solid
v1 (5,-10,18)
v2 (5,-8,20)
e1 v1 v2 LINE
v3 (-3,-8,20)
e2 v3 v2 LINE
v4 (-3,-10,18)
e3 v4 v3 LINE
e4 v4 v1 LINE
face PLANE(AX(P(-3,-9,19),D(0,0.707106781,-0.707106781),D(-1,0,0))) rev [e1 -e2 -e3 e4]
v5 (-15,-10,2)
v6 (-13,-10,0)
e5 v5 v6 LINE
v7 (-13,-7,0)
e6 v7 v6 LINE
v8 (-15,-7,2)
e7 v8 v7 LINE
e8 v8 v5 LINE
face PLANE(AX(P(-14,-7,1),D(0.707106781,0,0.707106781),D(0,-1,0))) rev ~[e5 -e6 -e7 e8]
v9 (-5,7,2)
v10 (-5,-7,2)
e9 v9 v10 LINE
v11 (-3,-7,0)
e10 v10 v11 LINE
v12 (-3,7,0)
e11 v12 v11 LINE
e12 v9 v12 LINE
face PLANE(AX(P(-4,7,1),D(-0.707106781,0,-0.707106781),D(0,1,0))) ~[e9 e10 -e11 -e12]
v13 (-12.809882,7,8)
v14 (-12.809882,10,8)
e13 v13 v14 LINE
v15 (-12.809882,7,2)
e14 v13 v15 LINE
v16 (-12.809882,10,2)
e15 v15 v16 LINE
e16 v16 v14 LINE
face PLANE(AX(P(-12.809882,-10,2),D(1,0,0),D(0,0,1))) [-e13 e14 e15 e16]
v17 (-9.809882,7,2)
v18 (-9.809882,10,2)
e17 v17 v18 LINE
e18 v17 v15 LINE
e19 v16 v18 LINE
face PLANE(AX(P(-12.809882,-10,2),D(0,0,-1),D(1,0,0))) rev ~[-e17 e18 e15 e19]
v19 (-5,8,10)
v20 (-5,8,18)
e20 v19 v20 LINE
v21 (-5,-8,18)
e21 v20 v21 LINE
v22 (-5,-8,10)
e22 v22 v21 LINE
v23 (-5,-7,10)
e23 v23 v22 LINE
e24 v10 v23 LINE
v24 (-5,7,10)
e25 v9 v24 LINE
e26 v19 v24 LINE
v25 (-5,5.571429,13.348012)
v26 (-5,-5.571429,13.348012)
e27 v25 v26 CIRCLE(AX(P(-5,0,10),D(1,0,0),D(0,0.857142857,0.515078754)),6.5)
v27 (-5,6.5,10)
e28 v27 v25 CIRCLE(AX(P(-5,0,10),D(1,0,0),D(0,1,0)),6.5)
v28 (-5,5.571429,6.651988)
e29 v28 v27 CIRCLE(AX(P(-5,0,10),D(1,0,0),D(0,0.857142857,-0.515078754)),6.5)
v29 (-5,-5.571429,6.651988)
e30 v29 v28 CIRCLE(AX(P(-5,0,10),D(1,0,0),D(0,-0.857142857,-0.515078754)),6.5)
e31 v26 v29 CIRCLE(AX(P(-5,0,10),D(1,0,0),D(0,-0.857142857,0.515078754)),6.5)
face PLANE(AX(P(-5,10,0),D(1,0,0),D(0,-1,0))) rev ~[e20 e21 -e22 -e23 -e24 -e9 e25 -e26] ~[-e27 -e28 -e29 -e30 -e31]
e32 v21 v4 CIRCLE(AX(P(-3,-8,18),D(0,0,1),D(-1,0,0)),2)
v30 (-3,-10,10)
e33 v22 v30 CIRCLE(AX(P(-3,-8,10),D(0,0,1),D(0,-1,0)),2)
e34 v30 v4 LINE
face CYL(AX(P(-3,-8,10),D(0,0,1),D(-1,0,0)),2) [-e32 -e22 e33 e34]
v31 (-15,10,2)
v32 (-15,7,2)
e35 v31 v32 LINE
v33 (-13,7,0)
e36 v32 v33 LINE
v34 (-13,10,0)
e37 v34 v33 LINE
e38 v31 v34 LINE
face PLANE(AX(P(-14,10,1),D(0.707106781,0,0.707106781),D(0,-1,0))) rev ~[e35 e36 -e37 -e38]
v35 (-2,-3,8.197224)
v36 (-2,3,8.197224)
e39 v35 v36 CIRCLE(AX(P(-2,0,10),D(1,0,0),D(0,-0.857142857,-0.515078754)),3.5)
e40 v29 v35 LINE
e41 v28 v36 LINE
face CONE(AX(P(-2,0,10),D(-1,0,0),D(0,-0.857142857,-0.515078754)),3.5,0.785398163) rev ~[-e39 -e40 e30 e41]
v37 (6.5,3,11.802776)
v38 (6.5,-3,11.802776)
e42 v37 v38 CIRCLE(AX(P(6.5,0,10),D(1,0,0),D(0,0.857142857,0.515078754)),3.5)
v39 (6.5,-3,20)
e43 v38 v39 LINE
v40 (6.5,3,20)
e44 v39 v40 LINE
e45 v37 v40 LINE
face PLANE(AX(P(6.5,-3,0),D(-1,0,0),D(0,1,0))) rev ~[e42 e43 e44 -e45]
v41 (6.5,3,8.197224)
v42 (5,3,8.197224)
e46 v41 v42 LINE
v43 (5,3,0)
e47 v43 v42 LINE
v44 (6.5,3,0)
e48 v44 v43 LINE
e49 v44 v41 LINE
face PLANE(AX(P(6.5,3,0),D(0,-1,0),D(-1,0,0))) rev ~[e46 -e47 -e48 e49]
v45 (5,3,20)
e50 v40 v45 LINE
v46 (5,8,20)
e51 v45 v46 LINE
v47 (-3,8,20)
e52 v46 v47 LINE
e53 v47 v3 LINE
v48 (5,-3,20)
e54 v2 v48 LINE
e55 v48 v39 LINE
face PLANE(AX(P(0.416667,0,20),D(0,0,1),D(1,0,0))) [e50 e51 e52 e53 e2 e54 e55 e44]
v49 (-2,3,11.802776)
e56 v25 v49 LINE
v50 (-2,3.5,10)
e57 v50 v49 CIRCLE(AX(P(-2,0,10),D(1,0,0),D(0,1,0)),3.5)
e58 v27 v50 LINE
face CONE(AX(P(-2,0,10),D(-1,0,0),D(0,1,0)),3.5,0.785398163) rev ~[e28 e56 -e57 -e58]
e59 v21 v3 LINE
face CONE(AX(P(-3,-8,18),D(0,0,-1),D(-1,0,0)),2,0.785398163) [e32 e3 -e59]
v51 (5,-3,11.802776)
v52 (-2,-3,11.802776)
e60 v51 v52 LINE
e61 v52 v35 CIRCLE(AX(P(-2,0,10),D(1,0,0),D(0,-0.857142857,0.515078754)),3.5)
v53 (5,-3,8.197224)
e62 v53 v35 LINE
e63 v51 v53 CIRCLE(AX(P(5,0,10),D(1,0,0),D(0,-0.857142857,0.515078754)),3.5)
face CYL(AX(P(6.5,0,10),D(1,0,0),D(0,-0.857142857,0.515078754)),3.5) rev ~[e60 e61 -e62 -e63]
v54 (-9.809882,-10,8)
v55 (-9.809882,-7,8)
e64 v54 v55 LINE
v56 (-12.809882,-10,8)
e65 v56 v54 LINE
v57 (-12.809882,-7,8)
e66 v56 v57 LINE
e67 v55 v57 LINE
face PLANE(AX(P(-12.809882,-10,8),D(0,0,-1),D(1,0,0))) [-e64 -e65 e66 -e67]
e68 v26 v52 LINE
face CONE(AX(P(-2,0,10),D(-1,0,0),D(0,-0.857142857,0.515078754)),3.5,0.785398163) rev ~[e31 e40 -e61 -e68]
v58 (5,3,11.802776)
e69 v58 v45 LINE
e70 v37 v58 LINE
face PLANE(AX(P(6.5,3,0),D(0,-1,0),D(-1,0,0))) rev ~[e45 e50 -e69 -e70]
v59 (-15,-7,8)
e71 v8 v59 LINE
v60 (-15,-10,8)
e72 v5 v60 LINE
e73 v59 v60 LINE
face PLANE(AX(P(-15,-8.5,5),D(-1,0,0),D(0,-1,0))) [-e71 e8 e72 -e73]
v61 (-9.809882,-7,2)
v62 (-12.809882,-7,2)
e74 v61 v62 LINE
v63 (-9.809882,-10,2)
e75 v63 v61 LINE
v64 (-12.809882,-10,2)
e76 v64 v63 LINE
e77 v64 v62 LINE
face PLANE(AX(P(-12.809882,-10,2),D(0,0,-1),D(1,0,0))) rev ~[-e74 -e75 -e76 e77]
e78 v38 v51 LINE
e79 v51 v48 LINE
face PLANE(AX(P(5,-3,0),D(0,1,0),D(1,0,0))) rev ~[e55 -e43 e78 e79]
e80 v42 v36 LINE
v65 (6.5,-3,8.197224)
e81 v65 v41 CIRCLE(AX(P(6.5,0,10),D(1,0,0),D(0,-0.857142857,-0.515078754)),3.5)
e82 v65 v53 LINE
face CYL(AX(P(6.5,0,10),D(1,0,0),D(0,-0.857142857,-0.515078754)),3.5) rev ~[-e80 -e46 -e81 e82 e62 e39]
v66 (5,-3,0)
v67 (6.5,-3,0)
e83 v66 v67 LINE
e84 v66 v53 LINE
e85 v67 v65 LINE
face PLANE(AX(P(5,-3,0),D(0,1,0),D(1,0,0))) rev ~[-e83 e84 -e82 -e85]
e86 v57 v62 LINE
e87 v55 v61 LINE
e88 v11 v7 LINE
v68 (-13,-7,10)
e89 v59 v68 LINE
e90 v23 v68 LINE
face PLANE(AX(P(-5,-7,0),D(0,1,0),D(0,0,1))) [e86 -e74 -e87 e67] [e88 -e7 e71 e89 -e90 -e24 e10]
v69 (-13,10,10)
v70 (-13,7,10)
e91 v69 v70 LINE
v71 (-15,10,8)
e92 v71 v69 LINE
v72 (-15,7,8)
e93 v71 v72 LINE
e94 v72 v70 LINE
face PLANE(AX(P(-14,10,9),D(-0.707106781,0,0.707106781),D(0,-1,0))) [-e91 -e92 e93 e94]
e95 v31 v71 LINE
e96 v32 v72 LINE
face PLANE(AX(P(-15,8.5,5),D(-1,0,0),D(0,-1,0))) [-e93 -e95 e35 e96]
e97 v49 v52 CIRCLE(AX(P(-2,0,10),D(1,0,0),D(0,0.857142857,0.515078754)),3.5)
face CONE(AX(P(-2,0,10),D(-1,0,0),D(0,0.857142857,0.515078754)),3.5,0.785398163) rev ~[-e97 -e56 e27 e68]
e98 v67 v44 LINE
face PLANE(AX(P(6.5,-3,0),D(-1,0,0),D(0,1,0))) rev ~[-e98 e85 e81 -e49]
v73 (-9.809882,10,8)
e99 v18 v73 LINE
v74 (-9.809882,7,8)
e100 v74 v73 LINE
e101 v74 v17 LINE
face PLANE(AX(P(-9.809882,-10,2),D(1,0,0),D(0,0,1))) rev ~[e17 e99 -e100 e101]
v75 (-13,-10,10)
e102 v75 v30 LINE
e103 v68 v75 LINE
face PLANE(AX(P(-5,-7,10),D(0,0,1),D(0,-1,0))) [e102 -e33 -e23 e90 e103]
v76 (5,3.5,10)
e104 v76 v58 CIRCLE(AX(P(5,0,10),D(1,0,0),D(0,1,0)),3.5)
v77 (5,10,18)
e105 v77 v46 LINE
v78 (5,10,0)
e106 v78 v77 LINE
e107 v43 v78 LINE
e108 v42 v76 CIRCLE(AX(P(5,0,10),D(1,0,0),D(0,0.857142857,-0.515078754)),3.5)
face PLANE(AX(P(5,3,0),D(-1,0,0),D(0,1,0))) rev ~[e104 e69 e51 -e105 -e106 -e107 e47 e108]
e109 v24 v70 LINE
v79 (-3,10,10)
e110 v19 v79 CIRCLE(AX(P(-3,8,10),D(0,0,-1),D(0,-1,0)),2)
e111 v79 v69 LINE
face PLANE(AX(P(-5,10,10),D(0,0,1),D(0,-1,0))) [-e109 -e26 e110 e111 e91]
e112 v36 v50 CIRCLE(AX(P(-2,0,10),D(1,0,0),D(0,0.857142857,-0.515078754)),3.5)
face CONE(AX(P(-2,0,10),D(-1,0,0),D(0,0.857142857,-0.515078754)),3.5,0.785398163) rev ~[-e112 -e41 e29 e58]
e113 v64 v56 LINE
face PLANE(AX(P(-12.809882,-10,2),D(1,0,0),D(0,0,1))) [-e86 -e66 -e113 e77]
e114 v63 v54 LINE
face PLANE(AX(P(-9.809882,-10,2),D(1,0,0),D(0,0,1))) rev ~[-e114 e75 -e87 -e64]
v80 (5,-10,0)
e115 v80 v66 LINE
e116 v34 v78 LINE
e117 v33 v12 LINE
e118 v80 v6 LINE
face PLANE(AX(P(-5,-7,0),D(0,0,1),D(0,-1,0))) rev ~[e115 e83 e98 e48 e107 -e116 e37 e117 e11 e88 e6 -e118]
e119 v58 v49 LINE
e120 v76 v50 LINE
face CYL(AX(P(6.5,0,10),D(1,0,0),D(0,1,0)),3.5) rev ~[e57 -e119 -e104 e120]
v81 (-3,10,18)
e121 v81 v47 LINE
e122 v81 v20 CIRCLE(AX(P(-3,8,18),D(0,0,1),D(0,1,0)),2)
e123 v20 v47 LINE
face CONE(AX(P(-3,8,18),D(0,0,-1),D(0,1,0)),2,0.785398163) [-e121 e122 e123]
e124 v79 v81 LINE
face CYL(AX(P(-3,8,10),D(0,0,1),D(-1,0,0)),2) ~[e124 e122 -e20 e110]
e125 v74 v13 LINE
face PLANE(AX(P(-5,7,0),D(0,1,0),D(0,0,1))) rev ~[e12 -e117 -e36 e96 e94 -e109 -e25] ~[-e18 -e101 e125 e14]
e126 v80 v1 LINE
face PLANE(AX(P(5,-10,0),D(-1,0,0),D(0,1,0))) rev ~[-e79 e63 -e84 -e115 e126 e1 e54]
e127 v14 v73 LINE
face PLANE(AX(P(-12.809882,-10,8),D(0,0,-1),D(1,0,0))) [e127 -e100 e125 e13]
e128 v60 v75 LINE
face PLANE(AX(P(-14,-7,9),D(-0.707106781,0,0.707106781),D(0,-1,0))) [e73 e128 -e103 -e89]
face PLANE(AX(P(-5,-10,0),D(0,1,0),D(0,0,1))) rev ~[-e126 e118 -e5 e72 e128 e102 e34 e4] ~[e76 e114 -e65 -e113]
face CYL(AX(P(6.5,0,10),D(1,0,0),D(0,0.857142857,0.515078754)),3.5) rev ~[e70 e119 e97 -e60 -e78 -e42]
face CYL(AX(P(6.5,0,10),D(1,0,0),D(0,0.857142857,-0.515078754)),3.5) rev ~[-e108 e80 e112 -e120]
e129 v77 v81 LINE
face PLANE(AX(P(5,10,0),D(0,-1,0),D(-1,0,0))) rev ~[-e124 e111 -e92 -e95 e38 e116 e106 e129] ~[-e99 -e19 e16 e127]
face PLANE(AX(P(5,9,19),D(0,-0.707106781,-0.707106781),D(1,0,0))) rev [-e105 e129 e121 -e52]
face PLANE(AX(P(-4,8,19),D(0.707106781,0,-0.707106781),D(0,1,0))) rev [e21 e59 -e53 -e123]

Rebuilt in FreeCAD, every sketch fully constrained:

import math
import FreeCAD as App
import Part
import Sketcher
Q = App.Units.Quantity


def edges_at(feature, points):
    """Names of the edges that pass closest to the given points."""
    edges = feature.Shape.Edges
    near = lambda p: min(range(len(edges)), key=lambda i: edges[i].distToShape(Part.Vertex(*p))[0])
    return sorted({f"Edge{near(p) + 1}" for p in points})


def add_polygon(sketch, points):
    """Adds a closed chain of lines whose ends are joined by coincident constraints."""
    first, n = sketch.GeometryCount, len(points)
    for a, b in zip(points, points[1:] + points[:1]):
        sketch.addGeometry(Part.LineSegment(App.Vector(*a, 0), App.Vector(*b, 0)), False)
    for i in range(n):
        sketch.addConstraint(Sketcher.Constraint("Coincident", first + i, 2, first + (i + 1) % n, 1))

doc = App.newDocument("Part")
params = doc.addObject("Spreadsheet::Sheet", "Params")
for row, (alias, value) in enumerate([
    ("sketch1_width", "10 mm"),
    ("sketch1_height", "20 mm"),
    ("sketch1_height2", "7 mm"),
    ("sketch1_width2", "1.5 mm"),
    ("pad1_length", "20 mm"),
    ("sketch2_radius", "3.5 mm"),
    ("pocket1_length", "15 mm"),
    ("chamfer_size", "3 mm"),
    ("sketch3_width", "3 mm"),
    ("sketch3_height", "10 mm"),
    ("pad2_length", "10 mm"),
    ("sketch4_width", "3 mm"),
    ("sketch4_height", "6 mm"),
    ("pocket2_length", "25 mm"),
    ("fillet_radius", "2 mm"),
    ("chamfer2_size", "2 mm"),
], start=1):
    params.set(f"A{row}", alias)
    params.set(f"B{row}", "=" + value)
    params.setAlias(f"B{row}", alias)

body = doc.addObject("PartDesign::Body", "Body")

# Sketch on XY plane
sketch1 = doc.addObject("Sketcher::SketchObject", "Sketch")
body.addObject(sketch1)
sketch1.AttachmentSupport = (doc.XY_Plane, [""])
sketch1.MapMode = "FlatFace"
add_polygon(sketch1, [(5, 10), (-5, 10), (-5, -10), (5, -10), (5, -3), (6.5, -3), (6.5, 3), (5, 3)])  # lines 0-7
sketch1.addConstraint([
    Sketcher.Constraint("Horizontal", 0),
    Sketcher.Constraint("Vertical", 1),
    Sketcher.Constraint("Horizontal", 2),
    Sketcher.Constraint("Vertical", 3),
    Sketcher.Constraint("Horizontal", 4),
    Sketcher.Constraint("Vertical", 5),
    Sketcher.Constraint("Horizontal", 6),
    Sketcher.Constraint("Vertical", 7),
    Sketcher.Constraint("Symmetric", 0, 2, 2, 2, -1, 1),
    Sketcher.Constraint("Symmetric", 3, 2, 6, 2, -1),
    Sketcher.Constraint("DistanceX", 0, 2, 0, 1, Q("10 mm")),
    Sketcher.Constraint("DistanceY", 1, 2, 1, 1, Q("20 mm")),
    Sketcher.Constraint("DistanceY", 3, 1, 3, 2, Q("7 mm")),
    Sketcher.Constraint("DistanceX", 4, 1, 4, 2, Q("1.5 mm")),
])
sketch1.setExpression("Constraints[18]", "Params.sketch1_width")
sketch1.setExpression("Constraints[19]", "Params.sketch1_height")
sketch1.setExpression("Constraints[20]", "Params.sketch1_height2")
sketch1.setExpression("Constraints[21]", "Params.sketch1_width2")
pad1 = doc.addObject("PartDesign::Pad", "Pad")
body.addObject(pad1)
pad1.Profile = sketch1
pad1.setExpression("Length", "Params.pad1_length")

# Sketch on YZ plane
sketch2 = doc.addObject("Sketcher::SketchObject", "Sketch001")
body.addObject(sketch2)
sketch2.AttachmentSupport = (doc.YZ_Plane, [""])
sketch2.MapMode = "FlatFace"
sketch2.AttachmentOffset = App.Placement(App.Vector(0, 0, 6.5), App.Rotation())
sketch2.addGeometry([
    Part.ArcOfCircle(Part.Circle(App.Vector(0, 10, 0), App.Vector(0, 0, 1), 3.5), math.radians(-31), math.radians(0)),  # 0
    Part.ArcOfCircle(Part.Circle(App.Vector(0, 10, 0), App.Vector(0, 0, 1), 3.5), math.radians(0), math.radians(31)),  # 1
    Part.ArcOfCircle(Part.Circle(App.Vector(0, 10, 0), App.Vector(0, 0, 1), 3.5), math.radians(31), math.radians(149)),  # 2
    Part.ArcOfCircle(Part.Circle(App.Vector(0, 10, 0), App.Vector(0, 0, 1), 3.5), math.radians(149), math.radians(211)),  # 3
    Part.ArcOfCircle(Part.Circle(App.Vector(0, 10, 0), App.Vector(0, 0, 1), 3.5), math.radians(-149), math.radians(-31)),  # 4
], False)
sketch2.addConstraint([
    Sketcher.Constraint("Tangent", 0, 2, 1, 1),
    Sketcher.Constraint("Tangent", 1, 2, 2, 1),
    Sketcher.Constraint("Tangent", 2, 2, 3, 1),
    Sketcher.Constraint("Tangent", 3, 2, 4, 1),
    Sketcher.Constraint("Tangent", 4, 2, 0, 1),
    Sketcher.Constraint("Coincident", 2, 3, 0, 3),
    Sketcher.Constraint("Symmetric", 1, 2, 2, 2, -2),
    Sketcher.Constraint("Horizontal", 4, 3, 0, 2),
    Sketcher.Constraint("Horizontal", 3, 2, 4, 2),
    Sketcher.Constraint("Vertical", 2, 2, 3, 2),
    Sketcher.Constraint("Radius", 0, Q("3.5 mm")),
    Sketcher.Constraint("DistanceY", -1, 1, 0, 3, Q("10 mm")),
    Sketcher.Constraint("DistanceX", -1, 1, 1, 2, Q("3 mm")),
])
sketch2.setExpression("Constraints[10]", "Params.sketch2_radius")
pocket1 = doc.addObject("PartDesign::Pocket", "Pocket")
body.addObject(pocket1)
pocket1.Profile = sketch2
pocket1.setExpression("Length", "Params.pocket1_length")
doc.recompute()

chamfer = doc.addObject("PartDesign::Chamfer", "Chamfer")
body.addObject(chamfer)
chamfer.Base = (pocket1, edges_at(pocket1, [(-5, 0, 6.5)]))
chamfer.setExpression("Size", "Params.chamfer_size")

# Sketch on YZ plane
sketch3 = doc.addObject("Sketcher::SketchObject", "Sketch002")
body.addObject(sketch3)
sketch3.AttachmentSupport = (doc.YZ_Plane, [""])
sketch3.MapMode = "FlatFace"
sketch3.AttachmentOffset = App.Placement(App.Vector(0, 0, -5), App.Rotation())
add_polygon(sketch3, [(-7, 10), (-7, 0), (-10, 0), (-10, 10)])  # lines 0-3
add_polygon(sketch3, [(10, 10), (10, 0), (7, 0), (7, 10)])  # lines 4-7
sketch3.addConstraint([
    Sketcher.Constraint("Vertical", 0),
    Sketcher.Constraint("Horizontal", 1),
    Sketcher.Constraint("Vertical", 2),
    Sketcher.Constraint("Horizontal", 3),
    Sketcher.Constraint("Vertical", 4),
    Sketcher.Constraint("Horizontal", 5),
    Sketcher.Constraint("Vertical", 6),
    Sketcher.Constraint("Horizontal", 7),
    Sketcher.Constraint("Symmetric", 1, 2, 4, 2, -1, 1),
    Sketcher.Constraint("Symmetric", 0, 2, 5, 2, -2),
    Sketcher.Constraint("Horizontal", 3, 2, 6, 2),
    Sketcher.Constraint("DistanceX", 1, 2, 1, 1, Q("3 mm")),
    Sketcher.Constraint("DistanceY", 0, 2, 0, 1, Q("10 mm")),
    Sketcher.Constraint("DistanceX", 0, 2, -1, 1, Q("7 mm")),
])
sketch3.setExpression("Constraints[19]", "Params.sketch3_width")
sketch3.setExpression("Constraints[20]", "Params.sketch3_height")
pad2 = doc.addObject("PartDesign::Pad", "Pad001")
body.addObject(pad2)
pad2.Profile = sketch3
pad2.setExpression("Length", "Params.pad2_length")
pad2.Reversed = True

# Sketch on XZ plane
sketch4 = doc.addObject("Sketcher::SketchObject", "Sketch003")
body.addObject(sketch4)
sketch4.AttachmentSupport = (doc.XZ_Plane, [""])
sketch4.MapMode = "FlatFace"
sketch4.AttachmentOffset = App.Placement(App.Vector(0, 0, 10), App.Rotation())
add_polygon(sketch4, [(-12.8, 8), (-12.8, 2), (-9.8, 2), (-9.8, 8)])  # lines 0-3
sketch4.addConstraint([
    Sketcher.Constraint("Vertical", 0),
    Sketcher.Constraint("Horizontal", 1),
    Sketcher.Constraint("Vertical", 2),
    Sketcher.Constraint("Horizontal", 3),
    Sketcher.Constraint("DistanceX", 1, 1, 1, 2, Q("3 mm")),
    Sketcher.Constraint("DistanceY", 0, 2, 0, 1, Q("6 mm")),
    Sketcher.Constraint("DistanceY", -1, 1, 0, 2, Q("2 mm")),
    Sketcher.Constraint("DistanceX", 0, 2, -1, 1, Q("12.809882 mm")),
])
sketch4.setExpression("Constraints[8]", "Params.sketch4_width")
sketch4.setExpression("Constraints[9]", "Params.sketch4_height")
pocket2 = doc.addObject("PartDesign::Pocket", "Pocket001")
body.addObject(pocket2)
pocket2.Profile = sketch4
pocket2.setExpression("Length", "Params.pocket2_length")
doc.recompute()

fillet = doc.addObject("PartDesign::Fillet", "Fillet")
body.addObject(fillet)
fillet.Base = (pocket2, edges_at(pocket2, [(-5, -10, 15), (-5, 10, 15)]))
fillet.setExpression("Radius", "Params.fillet_radius")
doc.recompute()

chamfer2 = doc.addObject("PartDesign::Chamfer", "Chamfer001")
body.addObject(chamfer2)
chamfer2.Base = (fillet, edges_at(fillet, [
    (-15, -8.5, 10),
    (-15, 8.5, 10),
    (-15, 8.5, 0),
    (-15, -8.5, 0),
    (-5, 0, 0),
    (-5, 0, 20),
]))
chamfer2.setExpression("Size", "Params.chamfer2_size")

doc.recompute()
